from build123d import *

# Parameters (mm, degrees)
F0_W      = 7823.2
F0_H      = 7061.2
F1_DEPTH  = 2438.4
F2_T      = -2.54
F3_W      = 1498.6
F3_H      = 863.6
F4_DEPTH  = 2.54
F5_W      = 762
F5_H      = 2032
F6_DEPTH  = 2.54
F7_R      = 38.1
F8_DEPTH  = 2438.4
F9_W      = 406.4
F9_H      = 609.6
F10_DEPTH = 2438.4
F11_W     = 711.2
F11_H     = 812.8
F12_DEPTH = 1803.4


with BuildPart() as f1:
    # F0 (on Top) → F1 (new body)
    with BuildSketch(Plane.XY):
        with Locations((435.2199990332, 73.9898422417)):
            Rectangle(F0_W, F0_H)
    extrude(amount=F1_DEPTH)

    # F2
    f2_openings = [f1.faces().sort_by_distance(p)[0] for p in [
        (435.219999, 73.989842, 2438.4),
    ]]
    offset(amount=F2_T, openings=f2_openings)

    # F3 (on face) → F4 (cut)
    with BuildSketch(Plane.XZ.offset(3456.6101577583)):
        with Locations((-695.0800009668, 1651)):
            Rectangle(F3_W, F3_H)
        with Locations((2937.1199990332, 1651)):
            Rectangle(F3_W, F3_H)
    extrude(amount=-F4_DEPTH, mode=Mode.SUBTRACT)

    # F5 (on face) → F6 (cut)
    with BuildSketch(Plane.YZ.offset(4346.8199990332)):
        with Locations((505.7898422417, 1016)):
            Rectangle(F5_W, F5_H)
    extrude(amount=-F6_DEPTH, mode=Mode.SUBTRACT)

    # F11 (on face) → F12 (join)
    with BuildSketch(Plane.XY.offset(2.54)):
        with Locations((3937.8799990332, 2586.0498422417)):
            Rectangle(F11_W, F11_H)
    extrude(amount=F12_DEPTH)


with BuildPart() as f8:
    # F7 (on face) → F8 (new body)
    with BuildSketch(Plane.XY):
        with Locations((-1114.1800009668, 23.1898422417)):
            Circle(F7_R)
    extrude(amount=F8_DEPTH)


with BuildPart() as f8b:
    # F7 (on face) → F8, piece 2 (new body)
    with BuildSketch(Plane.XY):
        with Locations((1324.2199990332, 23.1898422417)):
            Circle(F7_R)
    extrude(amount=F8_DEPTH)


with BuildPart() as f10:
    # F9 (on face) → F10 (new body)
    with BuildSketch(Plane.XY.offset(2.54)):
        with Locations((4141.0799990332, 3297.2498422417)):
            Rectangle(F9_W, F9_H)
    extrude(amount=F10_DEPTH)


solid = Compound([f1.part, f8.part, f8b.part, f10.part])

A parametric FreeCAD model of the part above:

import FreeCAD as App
import Part
import Sketcher

V = App.Vector
Q = App.Units.Quantity


def faces_at(feature, points):
    """Names of the faces that lie closest to the given points."""
    faces = feature.Shape.Faces
    near = lambda p: min(range(len(faces)), key=lambda i: faces[i].distToShape(Part.Vertex(*p))[0])
    return sorted({f"Face{near(p) + 1}" for p in points})


def add_polygon(sketch, points):
    """Adds a closed chain of lines whose ends are joined by coincident constraints."""
    first, n = sketch.GeometryCount, len(points)
    for a, b in zip(points, points[1:] + points[:1]):
        sketch.addGeometry(Part.LineSegment(App.Vector(*a, 0), App.Vector(*b, 0)), False)
    for i in range(n):
        sketch.addConstraint(Sketcher.Constraint("Coincident", first + i, 2, first + (i + 1) % n, 1))

doc = App.newDocument("Part")
body = doc.addObject("PartDesign::Body", "Body")

sketch1 = doc.addObject("Sketcher::SketchObject", "Sketch")
body.addObject(sketch1)
sketch1.AttachmentSupport = (doc.XY_Plane, [""])
sketch1.MapMode = "FlatFace"
add_polygon(sketch1, [(-3476, 3605), (-3476, -3457), (4347, -3457), (4347, 3605)])
sketch1.addConstraint([
    Sketcher.Constraint("Vertical", 0),
    Sketcher.Constraint("Horizontal", 1),
    Sketcher.Constraint("Vertical", 2),
    Sketcher.Constraint("Horizontal", 3),
    Sketcher.Constraint("DistanceX", 1, 1, 1, 2, Q("308 in")),
    Sketcher.Constraint("DistanceY", 0, 2, 0, 1, Q("278 in")),
    Sketcher.Constraint("DistanceX", 0, 2, -1, 1, Q("3476.380001 mm")),
    Sketcher.Constraint("DistanceY", 0, 2, -1, 1, Q("3456.610158 mm")),
])
pad1 = doc.addObject("PartDesign::Pad", "Pad")
body.addObject(pad1)
pad1.Profile = sketch1
pad1.Length = Q("96 in")
doc.recompute()

thickness = doc.addObject("PartDesign::Thickness", "Thickness")
body.addObject(thickness)
thickness.Base = (pad1, faces_at(pad1, [(435.22, 73.99, 2438.4)]))
thickness.Value = Q("0.1 in")
thickness.Reversed = True
thickness.Join = "Arc"

sketch2 = doc.addObject("Sketcher::SketchObject", "Sketch001")
body.addObject(sketch2)
sketch2.AttachmentSupport = (doc.XZ_Plane, [""])
sketch2.MapMode = "FlatFace"
sketch2.AttachmentOffset = App.Placement(V(0, 0, 3456.610158), App.Rotation())
add_polygon(sketch2, [(-1444, 2083), (-1444, 1219), (54, 1219), (54, 2083)])
add_polygon(sketch2, [(2188, 2083), (2188, 1219), (3686, 1219), (3686, 2083)])
sketch2.addConstraint([
    Sketcher.Constraint("Vertical", 0),
    Sketcher.Constraint("Horizontal", 1),
    Sketcher.Constraint("Vertical", 2),
    Sketcher.Constraint("Horizontal", 3),
    Sketcher.Constraint("Vertical", 4),
    Sketcher.Constraint("Horizontal", 5),
    Sketcher.Constraint("Vertical", 6),
    Sketcher.Constraint("Horizontal", 7),
    Sketcher.Constraint("Horizontal", 1, 2, 4, 2),
    Sketcher.Constraint("Horizontal", 3, 2, 6, 2),
    Sketcher.Constraint("Equal", 3, 5),
    Sketcher.Constraint("DistanceX", 1, 1, 1, 2, Q("59 in")),
    Sketcher.Constraint("DistanceY", 0, 2, 0, 1, Q("34 in")),
    Sketcher.Constraint("DistanceY", -1, 1, 0, 2, Q("48 in")),
    Sketcher.Constraint("DistanceX", 1, 2, 4, 2, Q("84 in")),
    Sketcher.Constraint("DistanceX", 0, 2, -1, 1, Q("1444.380001 mm")),
])
pocket1 = doc.addObject("PartDesign::Pocket", "Pocket")
body.addObject(pocket1)
pocket1.Profile = sketch2
pocket1.Length = Q("0.1 in")

sketch3 = doc.addObject("Sketcher::SketchObject", "Sketch002")
body.addObject(sketch3)
sketch3.AttachmentSupport = (doc.YZ_Plane, [""])
sketch3.MapMode = "FlatFace"
sketch3.AttachmentOffset = App.Placement(V(0, 0, 4346.819999), App.Rotation())
add_polygon(sketch3, [(125, 2032), (125, 0), (887, 0), (887, 2032)])
sketch3.addConstraint([
    Sketcher.Constraint("Vertical", 0),
    Sketcher.Constraint("Horizontal", 1),
    Sketcher.Constraint("Vertical", 2),
    Sketcher.Constraint("Horizontal", 3),
    Sketcher.Constraint("PointOnObject", 0, 2, -1),
    Sketcher.Constraint("DistanceX", 1, 1, 1, 2, Q("30 in")),
    Sketcher.Constraint("DistanceY", 0, 2, 0, 1, Q("80 in")),
    Sketcher.Constraint("DistanceX", -1, 1, 0, 2, Q("124.789842 mm")),
])
pocket2 = doc.addObject("PartDesign::Pocket", "Pocket001")
body.addObject(pocket2)
pocket2.Profile = sketch3
pocket2.Length = Q("0.1 in")

sketch4 = doc.addObject("Sketcher::SketchObject", "Sketch003")
body.addObject(sketch4)
sketch4.AttachmentSupport = (doc.XY_Plane, [""])
sketch4.MapMode = "FlatFace"
sketch4.AttachmentOffset = App.Placement(V(0, 0, 0.1 * 25.4), App.Rotation())
add_polygon(sketch4, [(3582, 2992), (3582, 2180), (4293, 2180), (4293, 2992)])
sketch4.addConstraint([
    Sketcher.Constraint("Vertical", 0),
    Sketcher.Constraint("Horizontal", 1),
    Sketcher.Constraint("Vertical", 2),
    Sketcher.Constraint("Horizontal", 3),
    Sketcher.Constraint("DistanceX", 1, 1, 1, 2, Q("28 in")),
    Sketcher.Constraint("DistanceY", 0, 2, 0, 1, Q("32 in")),
    Sketcher.Constraint("DistanceX", -1, 1, 0, 2, Q("3582.279999 mm")),
    Sketcher.Constraint("DistanceY", -1, 1, 0, 2, Q("2179.649842 mm")),
])
pad2 = doc.addObject("PartDesign::Pad", "Pad001")
body.addObject(pad2)
pad2.Profile = sketch4
pad2.Length = Q("71 in")
body2 = doc.addObject("PartDesign::Body", "Body001")

sketch5 = doc.addObject("Sketcher::SketchObject", "Sketch004")
body2.addObject(sketch5)
sketch5.AttachmentSupport = (doc.getObject("XY_Plane001"), [""])
sketch5.MapMode = "FlatFace"
sketch5.addGeometry(Part.Circle(V(-1114, 23, 0), V(0, 0, 1), 38), False)
sketch5.addConstraint([
    Sketcher.Constraint("Diameter", 0, Q("3 in")),
    Sketcher.Constraint("DistanceX", 0, 3, -1, 1, Q("1114.180001 mm")),
    Sketcher.Constraint("DistanceY", -1, 1, 0, 3, Q("23.189842 mm")),
])
pad3 = doc.addObject("PartDesign::Pad", "Pad002")
body2.addObject(pad3)
pad3.Profile = sketch5
pad3.Length = Q("96 in")
body3 = doc.addObject("PartDesign::Body", "Body002")

sketch6 = doc.addObject("Sketcher::SketchObject", "Sketch005")
body3.addObject(sketch6)
sketch6.AttachmentSupport = (doc.getObject("XY_Plane002"), [""])
sketch6.MapMode = "FlatFace"
sketch6.addGeometry(Part.Circle(V(1324, 23, 0), V(0, 0, 1), 38), False)
sketch6.addConstraint([
    Sketcher.Constraint("Diameter", 0, Q("3 in")),
    Sketcher.Constraint("DistanceX", -1, 1, 0, 3, Q("1324.219999 mm")),
    Sketcher.Constraint("DistanceY", -1, 1, 0, 3, Q("23.189842 mm")),
])
pad4 = doc.addObject("PartDesign::Pad", "Pad003")
body3.addObject(pad4)
pad4.Profile = sketch6
pad4.Length = Q("96 in")
body4 = doc.addObject("PartDesign::Body", "Body003")

sketch7 = doc.addObject("Sketcher::SketchObject", "Sketch006")
body4.addObject(sketch7)
sketch7.AttachmentSupport = (doc.getObject("XY_Plane003"), [""])
sketch7.MapMode = "FlatFace"
sketch7.AttachmentOffset = App.Placement(V(0, 0, 0.1 * 25.4), App.Rotation())
add_polygon(sketch7, [(3938, 3602), (3938, 2992), (4344, 2992), (4344, 3602)])
sketch7.addConstraint([
    Sketcher.Constraint("Vertical", 0),
    Sketcher.Constraint("Horizontal", 1),
    Sketcher.Constraint("Vertical", 2),
    Sketcher.Constraint("Horizontal", 3),
    Sketcher.Constraint("DistanceX", 1, 1, 1, 2, Q("16 in")),
    Sketcher.Constraint("DistanceY", 0, 2, 0, 1, Q("24 in")),
    Sketcher.Constraint("DistanceX", -1, 1, 0, 2, Q("3937.879999 mm")),
    Sketcher.Constraint("DistanceY", -1, 1, 0, 2, Q("2992.449842 mm")),
])
pad5 = doc.addObject("PartDesign::Pad", "Pad004")
body4.addObject(pad5)
pad5.Profile = sketch7
pad5.Length = Q("96 in")

doc.recompute()
